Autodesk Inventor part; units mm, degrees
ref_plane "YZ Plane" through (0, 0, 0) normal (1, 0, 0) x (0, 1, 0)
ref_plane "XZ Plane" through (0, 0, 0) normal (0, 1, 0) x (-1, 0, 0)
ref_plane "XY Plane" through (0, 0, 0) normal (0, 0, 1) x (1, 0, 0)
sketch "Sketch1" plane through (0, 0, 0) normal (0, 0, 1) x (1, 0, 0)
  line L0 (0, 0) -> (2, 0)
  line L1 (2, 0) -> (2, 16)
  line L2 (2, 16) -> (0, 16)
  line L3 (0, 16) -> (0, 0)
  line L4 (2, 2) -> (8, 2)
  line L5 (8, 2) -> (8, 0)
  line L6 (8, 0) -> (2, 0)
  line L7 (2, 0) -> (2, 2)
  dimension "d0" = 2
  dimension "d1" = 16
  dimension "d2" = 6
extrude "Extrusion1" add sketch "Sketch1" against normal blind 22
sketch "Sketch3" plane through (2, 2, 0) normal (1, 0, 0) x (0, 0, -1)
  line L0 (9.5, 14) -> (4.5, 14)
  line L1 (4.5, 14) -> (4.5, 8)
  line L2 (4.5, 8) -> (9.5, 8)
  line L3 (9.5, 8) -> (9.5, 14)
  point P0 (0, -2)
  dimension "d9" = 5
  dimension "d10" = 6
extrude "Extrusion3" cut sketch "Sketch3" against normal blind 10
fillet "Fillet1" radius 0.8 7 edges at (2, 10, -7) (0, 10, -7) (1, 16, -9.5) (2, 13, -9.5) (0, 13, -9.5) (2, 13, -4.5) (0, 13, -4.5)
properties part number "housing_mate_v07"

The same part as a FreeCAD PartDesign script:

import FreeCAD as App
import Part
import Sketcher
from FreeCAD import Vector
Q = App.Units.Quantity


def edges_at(feature, points):
    """Names of the edges that pass closest to the given points."""
    edges = feature.Shape.Edges
    near = lambda p: min(range(len(edges)), key=lambda i: edges[i].distToShape(Part.Vertex(*p))[0])
    return sorted({f"Edge{near(p) + 1}" for p in points})


def add_polygon(sketch, points):
    """Adds a closed chain of lines whose ends are joined by coincident constraints."""
    first, n = sketch.GeometryCount, len(points)
    for a, b in zip(points, points[1:] + points[:1]):
        sketch.addGeometry(Part.LineSegment(App.Vector(*a, 0), App.Vector(*b, 0)), False)
    for i in range(n):
        sketch.addConstraint(Sketcher.Constraint("Coincident", first + i, 2, first + (i + 1) % n, 1))

doc = App.newDocument("Part")
body = doc.addObject("PartDesign::Body", "Body")

# Sketch on XY plane
sketch1 = body.newObject("Sketcher::SketchObject", "Sketch")
sketch1.AttachmentSupport = (doc.getObject("XY_Plane"), [""])
sketch1.MapMode = "FlatFace"
add_polygon(sketch1, [(0, 16), (0, 0), (8, 0), (8, 2), (2, 2), (2, 16)])  # lines 0-5
sketch1.addConstraint(Sketcher.Constraint("Vertical", 0))
sketch1.addConstraint(Sketcher.Constraint("Horizontal", 1))
sketch1.addConstraint(Sketcher.Constraint("Vertical", 2))
sketch1.addConstraint(Sketcher.Constraint("Horizontal", 3))
sketch1.addConstraint(Sketcher.Constraint("Vertical", 4))
sketch1.addConstraint(Sketcher.Constraint("Horizontal", 5))
sketch1.addConstraint(Sketcher.Constraint("Coincident", 0, 2, -1, 1))
sketch1.addConstraint(Sketcher.Constraint("Equal", 5, 2))
sketch1.addConstraint(Sketcher.Constraint("DistanceX", 3, 2, 3, 1, Q("6 mm")))
sketch1.addConstraint(Sketcher.Constraint("DistanceX", 5, 2, 5, 1, Q("2 mm")))
sketch1.addConstraint(Sketcher.Constraint("DistanceY", 0, 2, 0, 1, Q("16 mm")))
pad1 = body.newObject("PartDesign::Pad", "Pad")
pad1.Profile = sketch1
pad1.Length = 22
pad1.Reversed = True

# Sketch on YZ plane
sketch2 = body.newObject("Sketcher::SketchObject", "Sketch001")
sketch2.AttachmentSupport = (doc.getObject("YZ_Plane"), [""])
sketch2.MapMode = "FlatFace"
sketch2.AttachmentOffset = App.Placement(Vector(0, 0, 2), App.Rotation())
add_polygon(sketch2, [(10, -9.5), (16, -9.5), (16, -4.5), (10, -4.5)])  # lines 0-3
sketch2.addConstraint(Sketcher.Constraint("Horizontal", 0))
sketch2.addConstraint(Sketcher.Constraint("Vertical", 1))
sketch2.addConstraint(Sketcher.Constraint("Horizontal", 2))
sketch2.addConstraint(Sketcher.Constraint("Vertical", 3))
sketch2.addConstraint(Sketcher.Constraint("DistanceX", 0, 1, 0, 2, Q("6 mm")))
sketch2.addConstraint(Sketcher.Constraint("DistanceY", 1, 1, 1, 2, Q("5 mm")))
sketch2.addConstraint(Sketcher.Constraint("DistanceX", -1, 1, 0, 2, Q("16 mm")))
sketch2.addConstraint(Sketcher.Constraint("DistanceY", 0, 2, -1, 1, Q("9.5 mm")))
pocket1 = body.newObject("PartDesign::Pocket", "Pocket")
pocket1.Profile = sketch2
pocket1.Length = 10
doc.recompute()

fillet = body.newObject("PartDesign::Fillet", "Fillet")
fillet.Base = (pocket1, edges_at(pocket1, [
    (2, 10, -7),
    (0, 10, -7),
    (1, 16, -9.5),
    (2, 13, -9.5),
    (0, 13, -9.5),
    (2, 13, -4.5),
    (0, 13, -4.5),
]))
fillet.Radius = 0.8

doc.recompute()
